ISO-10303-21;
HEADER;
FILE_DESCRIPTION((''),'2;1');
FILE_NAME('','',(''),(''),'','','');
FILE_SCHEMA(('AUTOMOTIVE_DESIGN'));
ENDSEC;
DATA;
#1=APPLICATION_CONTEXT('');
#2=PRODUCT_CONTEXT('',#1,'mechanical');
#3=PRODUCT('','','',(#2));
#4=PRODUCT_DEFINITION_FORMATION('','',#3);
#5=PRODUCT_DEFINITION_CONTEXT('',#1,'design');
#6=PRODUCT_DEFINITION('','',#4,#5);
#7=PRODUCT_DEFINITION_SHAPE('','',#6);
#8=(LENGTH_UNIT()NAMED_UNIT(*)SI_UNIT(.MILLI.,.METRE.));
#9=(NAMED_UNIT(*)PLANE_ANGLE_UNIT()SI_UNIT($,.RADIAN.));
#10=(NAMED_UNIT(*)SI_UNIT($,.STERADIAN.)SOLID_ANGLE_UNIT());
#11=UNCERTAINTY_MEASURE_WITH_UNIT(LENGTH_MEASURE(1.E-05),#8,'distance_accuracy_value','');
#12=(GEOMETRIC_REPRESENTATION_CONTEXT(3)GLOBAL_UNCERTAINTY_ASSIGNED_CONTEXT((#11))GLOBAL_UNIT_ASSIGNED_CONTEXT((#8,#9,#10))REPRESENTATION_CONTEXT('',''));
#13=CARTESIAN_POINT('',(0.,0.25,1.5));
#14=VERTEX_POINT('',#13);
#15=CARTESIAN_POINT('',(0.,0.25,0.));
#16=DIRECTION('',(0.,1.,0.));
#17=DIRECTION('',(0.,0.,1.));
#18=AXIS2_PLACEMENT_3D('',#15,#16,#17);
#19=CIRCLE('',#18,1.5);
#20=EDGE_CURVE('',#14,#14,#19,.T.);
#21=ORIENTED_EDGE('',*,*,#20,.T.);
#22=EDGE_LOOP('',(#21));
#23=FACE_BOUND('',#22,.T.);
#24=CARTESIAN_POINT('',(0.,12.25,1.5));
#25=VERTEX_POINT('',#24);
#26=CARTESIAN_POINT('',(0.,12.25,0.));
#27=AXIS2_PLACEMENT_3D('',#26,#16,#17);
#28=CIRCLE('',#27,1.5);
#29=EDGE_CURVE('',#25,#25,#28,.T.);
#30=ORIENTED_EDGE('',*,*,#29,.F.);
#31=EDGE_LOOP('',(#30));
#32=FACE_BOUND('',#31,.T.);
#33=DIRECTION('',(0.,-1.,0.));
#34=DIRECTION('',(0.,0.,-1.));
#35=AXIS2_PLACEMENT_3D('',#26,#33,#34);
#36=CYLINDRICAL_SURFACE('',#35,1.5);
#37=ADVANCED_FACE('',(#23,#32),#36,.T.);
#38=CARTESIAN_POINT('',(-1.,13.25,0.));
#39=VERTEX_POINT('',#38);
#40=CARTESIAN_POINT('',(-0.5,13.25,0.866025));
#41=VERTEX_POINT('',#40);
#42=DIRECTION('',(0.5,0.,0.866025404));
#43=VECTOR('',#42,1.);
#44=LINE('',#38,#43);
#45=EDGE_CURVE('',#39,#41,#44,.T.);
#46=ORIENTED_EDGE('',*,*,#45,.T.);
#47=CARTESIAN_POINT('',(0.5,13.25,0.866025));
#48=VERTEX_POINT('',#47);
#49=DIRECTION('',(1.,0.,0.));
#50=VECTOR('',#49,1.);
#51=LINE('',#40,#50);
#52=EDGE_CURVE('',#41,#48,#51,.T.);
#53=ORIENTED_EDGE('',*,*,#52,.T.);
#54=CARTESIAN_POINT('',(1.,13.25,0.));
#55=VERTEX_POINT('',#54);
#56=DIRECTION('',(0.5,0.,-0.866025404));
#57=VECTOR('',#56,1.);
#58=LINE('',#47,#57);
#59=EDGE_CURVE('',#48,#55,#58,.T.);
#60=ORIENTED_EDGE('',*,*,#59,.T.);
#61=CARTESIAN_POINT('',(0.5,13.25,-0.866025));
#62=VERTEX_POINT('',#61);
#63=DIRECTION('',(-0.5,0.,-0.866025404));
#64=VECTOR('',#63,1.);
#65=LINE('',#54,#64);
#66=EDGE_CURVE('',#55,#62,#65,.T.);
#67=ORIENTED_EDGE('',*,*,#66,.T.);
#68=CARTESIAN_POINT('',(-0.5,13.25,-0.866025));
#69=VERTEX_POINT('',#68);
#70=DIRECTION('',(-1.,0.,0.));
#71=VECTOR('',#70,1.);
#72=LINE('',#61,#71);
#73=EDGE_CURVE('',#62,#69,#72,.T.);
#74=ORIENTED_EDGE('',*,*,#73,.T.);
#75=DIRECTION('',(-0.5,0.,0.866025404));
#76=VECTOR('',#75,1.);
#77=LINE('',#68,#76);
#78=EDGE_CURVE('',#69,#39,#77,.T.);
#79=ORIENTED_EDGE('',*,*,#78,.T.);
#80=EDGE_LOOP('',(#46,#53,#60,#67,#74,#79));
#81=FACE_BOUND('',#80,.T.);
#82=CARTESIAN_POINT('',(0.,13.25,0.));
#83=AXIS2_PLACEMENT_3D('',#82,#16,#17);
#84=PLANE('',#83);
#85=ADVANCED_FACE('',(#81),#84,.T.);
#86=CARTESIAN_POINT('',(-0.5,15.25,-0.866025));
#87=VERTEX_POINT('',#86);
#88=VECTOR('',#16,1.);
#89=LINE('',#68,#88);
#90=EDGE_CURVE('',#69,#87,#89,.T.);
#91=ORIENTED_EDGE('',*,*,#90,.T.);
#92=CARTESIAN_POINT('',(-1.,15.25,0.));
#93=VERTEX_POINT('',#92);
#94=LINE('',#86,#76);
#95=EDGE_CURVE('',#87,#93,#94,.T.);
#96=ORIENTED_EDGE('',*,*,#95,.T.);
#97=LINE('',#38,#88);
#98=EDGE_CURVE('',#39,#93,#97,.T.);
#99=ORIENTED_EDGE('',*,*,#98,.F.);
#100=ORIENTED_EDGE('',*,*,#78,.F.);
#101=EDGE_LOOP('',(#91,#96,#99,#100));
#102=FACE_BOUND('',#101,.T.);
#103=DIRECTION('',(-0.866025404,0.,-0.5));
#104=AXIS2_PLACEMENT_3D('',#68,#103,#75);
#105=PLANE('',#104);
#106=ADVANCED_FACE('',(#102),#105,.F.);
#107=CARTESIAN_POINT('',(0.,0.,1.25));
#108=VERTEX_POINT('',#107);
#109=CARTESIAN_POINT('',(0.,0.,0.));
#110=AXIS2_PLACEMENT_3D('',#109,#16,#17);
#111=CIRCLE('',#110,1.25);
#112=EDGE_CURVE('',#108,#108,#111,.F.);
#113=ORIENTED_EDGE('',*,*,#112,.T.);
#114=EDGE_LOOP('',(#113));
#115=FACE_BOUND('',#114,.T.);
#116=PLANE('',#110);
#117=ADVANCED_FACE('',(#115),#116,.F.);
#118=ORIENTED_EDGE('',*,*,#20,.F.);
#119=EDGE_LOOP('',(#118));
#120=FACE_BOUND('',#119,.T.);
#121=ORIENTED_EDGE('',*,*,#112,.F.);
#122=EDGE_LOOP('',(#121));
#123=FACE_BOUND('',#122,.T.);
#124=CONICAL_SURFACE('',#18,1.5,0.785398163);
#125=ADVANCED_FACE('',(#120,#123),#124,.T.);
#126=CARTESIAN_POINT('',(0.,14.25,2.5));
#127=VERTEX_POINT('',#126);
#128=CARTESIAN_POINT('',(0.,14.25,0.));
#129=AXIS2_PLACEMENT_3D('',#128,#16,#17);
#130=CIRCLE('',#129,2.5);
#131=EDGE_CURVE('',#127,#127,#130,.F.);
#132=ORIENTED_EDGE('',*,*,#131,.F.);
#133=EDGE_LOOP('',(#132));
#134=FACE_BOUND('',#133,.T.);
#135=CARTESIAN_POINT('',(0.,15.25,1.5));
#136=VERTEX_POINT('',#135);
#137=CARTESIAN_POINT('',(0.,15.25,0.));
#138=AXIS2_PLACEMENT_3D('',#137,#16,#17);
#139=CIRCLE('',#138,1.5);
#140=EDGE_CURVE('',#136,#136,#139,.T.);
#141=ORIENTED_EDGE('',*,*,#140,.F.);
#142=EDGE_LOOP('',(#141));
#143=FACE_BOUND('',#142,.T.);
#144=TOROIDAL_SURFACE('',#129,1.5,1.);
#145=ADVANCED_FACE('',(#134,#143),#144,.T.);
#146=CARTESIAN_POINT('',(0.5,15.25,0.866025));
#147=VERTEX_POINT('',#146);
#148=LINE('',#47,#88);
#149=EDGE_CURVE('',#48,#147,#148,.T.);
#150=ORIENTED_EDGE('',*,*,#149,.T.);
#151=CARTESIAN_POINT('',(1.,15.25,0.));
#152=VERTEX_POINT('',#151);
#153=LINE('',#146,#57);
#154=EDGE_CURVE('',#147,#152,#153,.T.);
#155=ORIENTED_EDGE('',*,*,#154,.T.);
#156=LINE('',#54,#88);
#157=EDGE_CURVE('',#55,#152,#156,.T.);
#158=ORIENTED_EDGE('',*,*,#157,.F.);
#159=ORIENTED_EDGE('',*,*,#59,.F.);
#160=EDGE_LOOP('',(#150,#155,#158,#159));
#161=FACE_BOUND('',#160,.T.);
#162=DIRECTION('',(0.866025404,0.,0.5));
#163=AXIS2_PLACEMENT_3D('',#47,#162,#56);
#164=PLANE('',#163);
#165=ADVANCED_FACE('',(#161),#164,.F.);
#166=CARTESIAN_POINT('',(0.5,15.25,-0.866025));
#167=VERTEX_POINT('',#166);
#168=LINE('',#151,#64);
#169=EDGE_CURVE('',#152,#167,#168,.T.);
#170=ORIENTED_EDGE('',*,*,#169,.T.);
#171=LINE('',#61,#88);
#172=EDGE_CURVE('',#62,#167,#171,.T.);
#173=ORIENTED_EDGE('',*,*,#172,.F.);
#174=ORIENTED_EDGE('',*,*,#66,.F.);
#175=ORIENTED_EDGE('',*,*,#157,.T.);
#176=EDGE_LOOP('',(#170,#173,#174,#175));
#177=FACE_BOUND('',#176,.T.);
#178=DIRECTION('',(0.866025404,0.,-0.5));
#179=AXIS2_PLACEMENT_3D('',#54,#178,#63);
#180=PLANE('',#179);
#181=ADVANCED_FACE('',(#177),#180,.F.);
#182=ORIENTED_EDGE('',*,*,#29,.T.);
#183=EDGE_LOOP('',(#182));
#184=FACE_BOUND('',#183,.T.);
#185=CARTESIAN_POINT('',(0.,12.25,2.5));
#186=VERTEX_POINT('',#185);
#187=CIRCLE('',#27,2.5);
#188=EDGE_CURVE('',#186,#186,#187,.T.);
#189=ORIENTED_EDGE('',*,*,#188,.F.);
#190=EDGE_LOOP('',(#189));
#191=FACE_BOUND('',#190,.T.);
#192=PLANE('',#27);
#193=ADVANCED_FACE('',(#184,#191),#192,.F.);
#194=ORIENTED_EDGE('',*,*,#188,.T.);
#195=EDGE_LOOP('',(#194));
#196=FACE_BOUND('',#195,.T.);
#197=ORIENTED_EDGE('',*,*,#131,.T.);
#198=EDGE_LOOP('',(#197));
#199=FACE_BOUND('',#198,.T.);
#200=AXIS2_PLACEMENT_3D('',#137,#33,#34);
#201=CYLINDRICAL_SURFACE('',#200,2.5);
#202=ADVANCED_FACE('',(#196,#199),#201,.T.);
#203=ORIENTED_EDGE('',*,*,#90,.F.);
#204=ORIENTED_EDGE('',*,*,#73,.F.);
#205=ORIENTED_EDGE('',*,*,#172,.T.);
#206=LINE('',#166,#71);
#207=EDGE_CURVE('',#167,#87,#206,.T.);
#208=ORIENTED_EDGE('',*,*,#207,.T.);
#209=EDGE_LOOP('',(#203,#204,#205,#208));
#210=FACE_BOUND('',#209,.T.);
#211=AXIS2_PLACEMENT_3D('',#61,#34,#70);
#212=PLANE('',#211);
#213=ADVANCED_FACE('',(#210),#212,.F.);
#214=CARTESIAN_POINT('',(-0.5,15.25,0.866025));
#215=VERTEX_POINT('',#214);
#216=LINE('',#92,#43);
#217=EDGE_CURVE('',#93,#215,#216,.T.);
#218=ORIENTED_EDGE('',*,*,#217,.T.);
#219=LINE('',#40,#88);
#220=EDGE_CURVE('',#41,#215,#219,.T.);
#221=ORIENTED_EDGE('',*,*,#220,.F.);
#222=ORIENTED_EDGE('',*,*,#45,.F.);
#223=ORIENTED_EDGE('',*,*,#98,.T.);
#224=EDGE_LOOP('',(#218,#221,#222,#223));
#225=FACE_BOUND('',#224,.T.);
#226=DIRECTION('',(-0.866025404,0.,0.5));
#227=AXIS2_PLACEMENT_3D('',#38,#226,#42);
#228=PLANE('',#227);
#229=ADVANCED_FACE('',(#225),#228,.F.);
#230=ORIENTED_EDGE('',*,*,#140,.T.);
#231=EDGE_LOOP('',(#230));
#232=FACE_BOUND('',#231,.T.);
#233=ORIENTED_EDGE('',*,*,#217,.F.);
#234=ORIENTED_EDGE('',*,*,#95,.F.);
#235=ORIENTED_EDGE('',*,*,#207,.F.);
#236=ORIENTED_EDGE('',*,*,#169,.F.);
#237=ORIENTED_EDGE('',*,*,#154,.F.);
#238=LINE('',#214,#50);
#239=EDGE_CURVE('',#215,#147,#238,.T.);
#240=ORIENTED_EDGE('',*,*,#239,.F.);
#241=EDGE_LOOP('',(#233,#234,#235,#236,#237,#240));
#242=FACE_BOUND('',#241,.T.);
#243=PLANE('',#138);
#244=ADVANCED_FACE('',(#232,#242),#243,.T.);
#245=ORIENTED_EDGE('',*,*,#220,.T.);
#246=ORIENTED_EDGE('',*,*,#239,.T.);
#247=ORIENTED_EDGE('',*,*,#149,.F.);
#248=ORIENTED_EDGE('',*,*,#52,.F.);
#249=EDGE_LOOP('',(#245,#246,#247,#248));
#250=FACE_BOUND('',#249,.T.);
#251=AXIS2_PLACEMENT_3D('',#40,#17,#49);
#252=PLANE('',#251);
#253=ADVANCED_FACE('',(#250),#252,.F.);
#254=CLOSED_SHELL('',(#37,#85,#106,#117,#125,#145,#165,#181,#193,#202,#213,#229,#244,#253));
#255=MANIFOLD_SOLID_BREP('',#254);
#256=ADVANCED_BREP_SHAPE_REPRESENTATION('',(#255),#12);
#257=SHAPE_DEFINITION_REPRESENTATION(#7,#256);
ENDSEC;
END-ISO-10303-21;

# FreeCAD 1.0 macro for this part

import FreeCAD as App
import Part
import Sketcher

V = App.Vector
Q = App.Units.Quantity


def edges_at(feature, points):
    """Names of the edges that pass closest to the given points."""
    edges = feature.Shape.Edges
    near = lambda p: min(range(len(edges)), key=lambda i: edges[i].distToShape(Part.Vertex(*p))[0])
    return sorted({f"Edge{near(p) + 1}" for p in points})

doc = App.newDocument("Part")
body = doc.addObject("PartDesign::Body", "Body")

# Sketch on XZ plane
sketch1 = body.newObject("Sketcher::SketchObject", "Sketch")
sketch1.AttachmentSupport = (doc.getObject("XZ_Plane"), [""])
sketch1.MapMode = "FlatFace"
sketch1.addGeometry(Part.Circle(V(0, 0, 0), V(0, 0, 1), 1.5), False)
sketch1.addConstraint([
    Sketcher.Constraint("Coincident", 0, 3, -1, 1),
    Sketcher.Constraint("Diameter", 0, Q("3 mm")),
])
pad1 = body.newObject("PartDesign::Pad", "Pad")
pad1.Profile = sketch1
pad1.Length = 12.25
pad1.Reversed = True

# Sketch on XZ plane
sketch2 = body.newObject("Sketcher::SketchObject", "Sketch001")
sketch2.AttachmentSupport = (doc.getObject("XZ_Plane"), [""])
sketch2.MapMode = "FlatFace"
sketch2.AttachmentOffset = App.Placement(V(0, 0, -12.25), App.Rotation())
sketch2.addGeometry(Part.Circle(V(0, 0, 0), V(0, 0, 1), 2.5), False)
sketch2.addConstraint([
    Sketcher.Constraint("Coincident", 0, 3, -1, 1),
    Sketcher.Constraint("Diameter", 0, Q("5 mm")),
])
pad2 = body.newObject("PartDesign::Pad", "Pad001")
pad2.Profile = sketch2
pad2.Length = 3
pad2.Reversed = True
doc.recompute()

fillet = body.newObject("PartDesign::Fillet", "Fillet")
fillet.Base = (pad2, edges_at(pad2, [(0, 15.25, -2.5)]))
fillet.Radius = 1
doc.recompute()

chamfer = body.newObject("PartDesign::Chamfer", "Chamfer")
chamfer.Base = (fillet, edges_at(fillet, [(0, 0, -1.5)]))
chamfer.Size = 0.25

# Sketch on XZ plane
sketch3 = body.newObject("Sketcher::SketchObject", "Sketch002")
sketch3.AttachmentSupport = (doc.getObject("XZ_Plane"), [""])
sketch3.MapMode = "FlatFace"
sketch3.AttachmentOffset = App.Placement(V(0, 0, -15.25), App.Rotation())
sketch3.addGeometry([
    Part.LineSegment(V(-1, 0, 0), V(-0.5, 0.9, 0)),  # 0
    Part.LineSegment(V(-0.5, 0.9, 0), V(0.5, 0.9, 0)),  # 1
    Part.LineSegment(V(0.5, 0.9, 0), V(1, 0, 0)),  # 2
    Part.LineSegment(V(1, 0, 0), V(0.5, -0.9, 0)),  # 3
    Part.LineSegment(V(0.5, -0.9, 0), V(-0.5, -0.9, 0)),  # 4
    Part.LineSegment(V(-0.5, -0.9, 0), V(-1, 0, 0)),  # 5
], False)
sketch3.addConstraint([
    Sketcher.Constraint("Coincident", 0, 2, 1, 1),
    Sketcher.Constraint("Coincident", 1, 2, 2, 1),
    Sketcher.Constraint("Coincident", 2, 2, 3, 1),
    Sketcher.Constraint("Coincident", 3, 2, 4, 1),
    Sketcher.Constraint("Coincident", 4, 2, 5, 1),
    Sketcher.Constraint("Coincident", 5, 2, 0, 1),
    Sketcher.Constraint("Horizontal", 1),
    Sketcher.Constraint("Horizontal", 4),
    Sketcher.Constraint("Symmetric", 0, 2, 3, 2, -1, 1),
    Sketcher.Constraint("Symmetric", 2, 2, 5, 2, -1, 1),
    Sketcher.Constraint("PointOnObject", 2, 2, -1),
    Sketcher.Constraint("Parallel", 2, 5),
    Sketcher.Constraint("Vertical", 1, 2, 3, 2),
    Sketcher.Constraint("DistanceX", 1, 1, 1, 2, Q("1 mm")),
    Sketcher.Constraint("Angle", 0, Q("60 deg")),
    Sketcher.Constraint("Distance", 0, Q("1 mm")),
])
pocket1 = body.newObject("PartDesign::Pocket", "Pocket")
pocket1.Profile = sketch3
pocket1.Length = 2
pocket1.Reversed = True

doc.recompute()
